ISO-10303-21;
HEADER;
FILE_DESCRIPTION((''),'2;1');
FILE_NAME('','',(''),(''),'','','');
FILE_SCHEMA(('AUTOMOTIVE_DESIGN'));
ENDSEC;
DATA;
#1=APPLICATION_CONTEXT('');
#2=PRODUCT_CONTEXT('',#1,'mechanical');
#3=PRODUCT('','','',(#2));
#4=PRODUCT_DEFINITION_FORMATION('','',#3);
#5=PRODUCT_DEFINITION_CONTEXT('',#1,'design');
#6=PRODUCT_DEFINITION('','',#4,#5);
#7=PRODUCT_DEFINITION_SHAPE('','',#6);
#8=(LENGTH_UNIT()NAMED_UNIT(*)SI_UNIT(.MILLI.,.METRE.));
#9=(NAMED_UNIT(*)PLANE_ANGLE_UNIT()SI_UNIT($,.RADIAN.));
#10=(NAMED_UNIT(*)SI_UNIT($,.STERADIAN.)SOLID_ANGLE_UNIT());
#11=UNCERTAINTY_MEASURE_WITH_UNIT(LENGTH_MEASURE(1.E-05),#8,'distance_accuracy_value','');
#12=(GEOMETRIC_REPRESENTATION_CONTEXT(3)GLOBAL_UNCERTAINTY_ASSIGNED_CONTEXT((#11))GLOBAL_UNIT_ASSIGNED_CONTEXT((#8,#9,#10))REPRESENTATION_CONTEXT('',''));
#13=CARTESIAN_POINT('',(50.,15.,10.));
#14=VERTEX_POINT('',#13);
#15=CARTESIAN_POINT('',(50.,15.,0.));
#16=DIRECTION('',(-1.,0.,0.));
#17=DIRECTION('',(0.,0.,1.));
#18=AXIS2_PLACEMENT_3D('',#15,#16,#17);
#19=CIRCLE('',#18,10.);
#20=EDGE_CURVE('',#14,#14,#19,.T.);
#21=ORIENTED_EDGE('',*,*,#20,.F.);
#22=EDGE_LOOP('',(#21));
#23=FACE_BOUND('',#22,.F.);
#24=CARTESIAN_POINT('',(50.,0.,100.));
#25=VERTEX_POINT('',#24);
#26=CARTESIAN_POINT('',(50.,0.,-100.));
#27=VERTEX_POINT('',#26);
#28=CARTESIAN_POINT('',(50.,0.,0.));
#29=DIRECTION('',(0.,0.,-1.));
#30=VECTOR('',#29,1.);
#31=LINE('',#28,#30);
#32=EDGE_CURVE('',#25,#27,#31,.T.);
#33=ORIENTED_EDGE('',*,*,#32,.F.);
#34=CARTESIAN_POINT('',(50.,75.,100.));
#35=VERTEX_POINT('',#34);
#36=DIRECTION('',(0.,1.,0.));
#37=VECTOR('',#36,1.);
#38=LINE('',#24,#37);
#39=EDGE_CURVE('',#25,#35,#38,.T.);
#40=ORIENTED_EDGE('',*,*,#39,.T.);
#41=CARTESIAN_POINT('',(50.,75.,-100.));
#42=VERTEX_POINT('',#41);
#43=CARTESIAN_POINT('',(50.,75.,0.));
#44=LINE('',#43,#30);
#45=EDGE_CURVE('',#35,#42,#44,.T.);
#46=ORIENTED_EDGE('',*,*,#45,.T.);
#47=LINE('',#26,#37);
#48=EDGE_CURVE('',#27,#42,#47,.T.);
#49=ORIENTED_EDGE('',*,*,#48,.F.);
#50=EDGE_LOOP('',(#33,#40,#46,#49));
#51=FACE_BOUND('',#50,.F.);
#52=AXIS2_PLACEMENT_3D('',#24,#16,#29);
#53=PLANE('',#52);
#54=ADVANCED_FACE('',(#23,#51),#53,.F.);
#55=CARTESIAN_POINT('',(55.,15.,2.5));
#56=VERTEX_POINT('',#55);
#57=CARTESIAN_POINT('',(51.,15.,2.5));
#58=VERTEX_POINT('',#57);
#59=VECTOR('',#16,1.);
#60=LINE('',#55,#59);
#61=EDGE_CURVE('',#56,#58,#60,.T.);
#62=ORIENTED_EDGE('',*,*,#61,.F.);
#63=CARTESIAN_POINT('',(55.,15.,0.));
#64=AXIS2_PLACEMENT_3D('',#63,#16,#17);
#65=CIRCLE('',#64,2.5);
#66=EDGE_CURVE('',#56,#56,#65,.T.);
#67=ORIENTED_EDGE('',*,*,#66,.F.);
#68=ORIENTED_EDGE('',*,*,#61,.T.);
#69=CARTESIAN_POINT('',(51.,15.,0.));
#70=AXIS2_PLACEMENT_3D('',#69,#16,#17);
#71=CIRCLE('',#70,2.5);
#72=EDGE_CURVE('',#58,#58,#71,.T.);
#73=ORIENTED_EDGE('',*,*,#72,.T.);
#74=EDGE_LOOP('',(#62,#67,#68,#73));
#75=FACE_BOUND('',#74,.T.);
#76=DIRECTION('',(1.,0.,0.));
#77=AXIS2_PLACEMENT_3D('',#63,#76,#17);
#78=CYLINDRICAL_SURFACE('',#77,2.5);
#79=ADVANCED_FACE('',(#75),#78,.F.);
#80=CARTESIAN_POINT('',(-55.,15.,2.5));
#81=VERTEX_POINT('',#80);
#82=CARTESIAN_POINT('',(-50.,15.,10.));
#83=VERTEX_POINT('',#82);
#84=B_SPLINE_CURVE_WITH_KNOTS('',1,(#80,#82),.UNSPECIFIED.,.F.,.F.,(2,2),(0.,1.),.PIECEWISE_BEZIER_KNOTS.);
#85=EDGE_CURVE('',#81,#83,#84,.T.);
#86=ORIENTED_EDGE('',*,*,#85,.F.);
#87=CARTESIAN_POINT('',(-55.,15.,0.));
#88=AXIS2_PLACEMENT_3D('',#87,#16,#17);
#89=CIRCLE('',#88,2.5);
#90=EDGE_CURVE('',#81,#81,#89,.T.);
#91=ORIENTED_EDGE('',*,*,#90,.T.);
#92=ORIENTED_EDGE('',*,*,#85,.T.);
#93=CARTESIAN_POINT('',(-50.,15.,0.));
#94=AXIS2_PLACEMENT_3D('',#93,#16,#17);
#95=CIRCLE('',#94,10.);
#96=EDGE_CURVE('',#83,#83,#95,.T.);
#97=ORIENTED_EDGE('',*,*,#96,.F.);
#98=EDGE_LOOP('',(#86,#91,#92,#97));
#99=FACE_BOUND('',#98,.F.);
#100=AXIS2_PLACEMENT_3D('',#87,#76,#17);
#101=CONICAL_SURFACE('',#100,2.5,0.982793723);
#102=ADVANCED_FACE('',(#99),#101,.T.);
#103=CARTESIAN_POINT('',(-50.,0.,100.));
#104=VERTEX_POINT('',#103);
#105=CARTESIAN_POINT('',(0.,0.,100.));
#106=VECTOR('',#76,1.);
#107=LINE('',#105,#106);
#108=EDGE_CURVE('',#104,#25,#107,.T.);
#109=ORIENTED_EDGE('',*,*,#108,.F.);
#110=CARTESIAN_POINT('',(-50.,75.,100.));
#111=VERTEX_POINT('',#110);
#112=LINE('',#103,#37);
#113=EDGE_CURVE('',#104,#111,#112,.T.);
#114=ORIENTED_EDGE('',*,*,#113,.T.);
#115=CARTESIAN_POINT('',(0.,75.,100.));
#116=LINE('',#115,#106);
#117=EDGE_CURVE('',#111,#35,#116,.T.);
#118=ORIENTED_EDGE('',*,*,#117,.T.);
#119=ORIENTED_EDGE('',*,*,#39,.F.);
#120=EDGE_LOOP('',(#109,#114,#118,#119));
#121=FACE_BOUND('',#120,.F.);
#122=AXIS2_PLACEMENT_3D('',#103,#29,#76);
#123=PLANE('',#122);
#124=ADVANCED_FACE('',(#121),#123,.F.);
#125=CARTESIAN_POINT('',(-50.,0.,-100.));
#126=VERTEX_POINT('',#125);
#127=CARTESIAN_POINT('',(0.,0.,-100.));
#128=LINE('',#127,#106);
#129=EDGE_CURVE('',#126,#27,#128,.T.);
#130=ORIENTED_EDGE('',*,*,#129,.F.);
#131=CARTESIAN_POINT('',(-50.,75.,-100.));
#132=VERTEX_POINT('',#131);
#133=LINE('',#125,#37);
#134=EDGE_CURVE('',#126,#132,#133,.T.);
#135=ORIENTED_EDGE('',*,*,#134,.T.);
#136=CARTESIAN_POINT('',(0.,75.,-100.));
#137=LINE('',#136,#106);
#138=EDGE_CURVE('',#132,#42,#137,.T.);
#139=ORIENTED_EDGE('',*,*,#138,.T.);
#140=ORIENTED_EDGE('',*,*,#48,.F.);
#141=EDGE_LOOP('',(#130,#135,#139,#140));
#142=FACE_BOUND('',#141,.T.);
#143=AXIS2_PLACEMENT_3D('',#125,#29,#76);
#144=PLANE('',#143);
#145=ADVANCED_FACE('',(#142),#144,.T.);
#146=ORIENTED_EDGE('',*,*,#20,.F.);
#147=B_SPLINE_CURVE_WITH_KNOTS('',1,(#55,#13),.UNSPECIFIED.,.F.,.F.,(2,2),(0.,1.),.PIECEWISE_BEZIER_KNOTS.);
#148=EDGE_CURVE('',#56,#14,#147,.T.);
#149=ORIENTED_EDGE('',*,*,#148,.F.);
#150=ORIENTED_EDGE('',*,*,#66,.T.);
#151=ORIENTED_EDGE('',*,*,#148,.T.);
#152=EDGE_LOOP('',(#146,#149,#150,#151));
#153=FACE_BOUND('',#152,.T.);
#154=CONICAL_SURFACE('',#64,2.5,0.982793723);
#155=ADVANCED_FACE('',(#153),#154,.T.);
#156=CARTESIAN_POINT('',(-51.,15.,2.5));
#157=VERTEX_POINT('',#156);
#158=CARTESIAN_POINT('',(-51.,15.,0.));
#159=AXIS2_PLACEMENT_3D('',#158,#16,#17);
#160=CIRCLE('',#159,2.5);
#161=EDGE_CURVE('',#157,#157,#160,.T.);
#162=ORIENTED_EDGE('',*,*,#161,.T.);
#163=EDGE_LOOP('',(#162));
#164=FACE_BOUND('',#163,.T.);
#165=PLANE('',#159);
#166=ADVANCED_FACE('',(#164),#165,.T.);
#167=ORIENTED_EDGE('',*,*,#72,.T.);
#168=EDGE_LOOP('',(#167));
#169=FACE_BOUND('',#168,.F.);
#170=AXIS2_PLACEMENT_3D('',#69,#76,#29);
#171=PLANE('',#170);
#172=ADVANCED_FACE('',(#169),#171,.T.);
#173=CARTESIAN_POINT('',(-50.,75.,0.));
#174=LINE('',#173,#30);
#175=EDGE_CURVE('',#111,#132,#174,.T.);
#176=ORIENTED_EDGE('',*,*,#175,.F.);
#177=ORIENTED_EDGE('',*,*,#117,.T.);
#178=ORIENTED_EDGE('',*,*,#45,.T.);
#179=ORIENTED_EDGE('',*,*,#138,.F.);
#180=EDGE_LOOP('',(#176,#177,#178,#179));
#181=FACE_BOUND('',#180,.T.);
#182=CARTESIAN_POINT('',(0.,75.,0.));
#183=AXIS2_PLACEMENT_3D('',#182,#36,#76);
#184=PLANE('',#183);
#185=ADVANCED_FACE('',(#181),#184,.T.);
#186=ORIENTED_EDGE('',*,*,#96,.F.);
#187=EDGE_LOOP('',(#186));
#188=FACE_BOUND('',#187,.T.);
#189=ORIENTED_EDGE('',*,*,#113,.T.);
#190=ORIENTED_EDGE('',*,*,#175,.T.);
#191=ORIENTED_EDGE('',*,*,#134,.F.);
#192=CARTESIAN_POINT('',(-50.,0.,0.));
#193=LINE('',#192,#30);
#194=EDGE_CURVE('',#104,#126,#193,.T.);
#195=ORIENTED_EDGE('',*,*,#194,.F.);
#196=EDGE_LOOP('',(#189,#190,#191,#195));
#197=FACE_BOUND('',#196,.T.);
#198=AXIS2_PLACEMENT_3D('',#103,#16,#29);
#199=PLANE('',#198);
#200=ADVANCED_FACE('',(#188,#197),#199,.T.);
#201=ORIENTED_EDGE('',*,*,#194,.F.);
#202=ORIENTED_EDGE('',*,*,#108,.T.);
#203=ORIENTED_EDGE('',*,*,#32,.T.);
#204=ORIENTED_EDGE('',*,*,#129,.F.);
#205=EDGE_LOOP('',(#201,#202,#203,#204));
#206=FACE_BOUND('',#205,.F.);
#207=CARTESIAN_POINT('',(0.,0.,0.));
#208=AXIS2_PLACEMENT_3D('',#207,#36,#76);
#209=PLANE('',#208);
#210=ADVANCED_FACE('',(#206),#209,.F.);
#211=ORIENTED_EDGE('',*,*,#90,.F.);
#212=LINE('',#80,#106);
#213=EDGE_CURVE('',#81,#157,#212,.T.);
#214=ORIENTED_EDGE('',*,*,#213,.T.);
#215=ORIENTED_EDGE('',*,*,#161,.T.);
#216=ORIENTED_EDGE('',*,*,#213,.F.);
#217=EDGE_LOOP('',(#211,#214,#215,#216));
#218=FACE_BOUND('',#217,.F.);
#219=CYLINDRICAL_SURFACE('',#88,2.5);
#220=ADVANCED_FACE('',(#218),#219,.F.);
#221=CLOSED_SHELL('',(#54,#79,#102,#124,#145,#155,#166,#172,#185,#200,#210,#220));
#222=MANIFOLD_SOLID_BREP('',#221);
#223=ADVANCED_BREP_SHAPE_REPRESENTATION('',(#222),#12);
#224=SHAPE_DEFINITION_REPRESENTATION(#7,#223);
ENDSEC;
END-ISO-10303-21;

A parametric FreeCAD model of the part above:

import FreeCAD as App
import Part
import Sketcher
from FreeCAD import Vector
Q = App.Units.Quantity


def add_polygon(sketch, points):
    """Adds a closed chain of lines whose ends are joined by coincident constraints."""
    first, n = sketch.GeometryCount, len(points)
    for a, b in zip(points, points[1:] + points[:1]):
        sketch.addGeometry(Part.LineSegment(App.Vector(*a, 0), App.Vector(*b, 0)), False)
    for i in range(n):
        sketch.addConstraint(Sketcher.Constraint("Coincident", first + i, 2, first + (i + 1) % n, 1))

doc = App.newDocument("Part")
params = doc.addObject("Spreadsheet::Sheet", "Params")
for row, (alias, value) in enumerate([
    ("sketch1_width", "100 mm"),
    ("sketch1_height", "200 mm"),
    ("pad1_length", "75 mm"),
    ("sketch2_diameter", "5 mm"),
    ("sketch3_diameter", "20 mm"),
    ("sketch4_diameter", "5 mm"),
    ("pocket1_length", "4 mm"),
], start=1):
    params.set(f"A{row}", alias)
    params.set(f"B{row}", "=" + value)
    params.setAlias(f"B{row}", alias)

body = doc.addObject("PartDesign::Body", "Body")

sketch1 = body.newObject("Sketcher::SketchObject", "Sketch")
sketch1.AttachmentSupport = (doc.getObject("XZ_Plane"), [""])
sketch1.MapMode = "FlatFace"
add_polygon(sketch1, [(-50, -100), (-50, 100), (50, 100), (50, -100)])
sketch1.addConstraint([
    Sketcher.Constraint("Vertical", 0),
    Sketcher.Constraint("Horizontal", 1),
    Sketcher.Constraint("Vertical", 2),
    Sketcher.Constraint("Horizontal", 3),
    Sketcher.Constraint("Symmetric", 0, 2, 2, 2, -1, 1),
    Sketcher.Constraint("DistanceX", 1, 1, 1, 2, Q("100 mm")),
    Sketcher.Constraint("DistanceY", 0, 1, 0, 2, Q("200 mm")),
])
sketch1.setExpression("Constraints[9]", "Params.sketch1_width")
sketch1.setExpression("Constraints[10]", "Params.sketch1_height")
pad1 = body.newObject("PartDesign::Pad", "Pad")
pad1.Profile = sketch1
pad1.setExpression("Length", "Params.pad1_length")
pad1.Reversed = True

sketch2 = body.newObject("Sketcher::SketchObject", "Sketch001")
sketch2.AttachmentSupport = (doc.getObject("YZ_Plane"), [""])
sketch2.MapMode = "FlatFace"
sketch2.AttachmentOffset = App.Placement(Vector(0, 0, -55), App.Rotation())
sketch2.addGeometry(Part.Circle(Vector(15, 0, 0), Vector(0, 0, 1), 2.5), False)
sketch2.addConstraint([
    Sketcher.Constraint("PointOnObject", 0, 3, -1),
    Sketcher.Constraint("Diameter", 0, Q("5 mm")),
    Sketcher.Constraint("DistanceX", -1, 1, 0, 3, Q("15 mm")),
])
sketch2.setExpression("Constraints[1]", "Params.sketch2_diameter")

sketch3 = body.newObject("Sketcher::SketchObject", "Sketch002")
sketch3.AttachmentSupport = (doc.getObject("YZ_Plane"), [""])
sketch3.MapMode = "FlatFace"
sketch3.AttachmentOffset = App.Placement(Vector(0, 0, -50), App.Rotation())
sketch3.addGeometry(Part.Circle(Vector(15, 0, 0), Vector(0, 0, 1), 10), False)
sketch3.addConstraint([
    Sketcher.Constraint("PointOnObject", 0, 3, -1),
    Sketcher.Constraint("Diameter", 0, Q("20 mm")),
    Sketcher.Constraint("DistanceX", -1, 1, 0, 3, Q("15 mm")),
])
sketch3.setExpression("Constraints[1]", "Params.sketch3_diameter")

additiveloft = body.newObject("PartDesign::AdditiveLoft", "AdditiveLoft")
additiveloft.Profile = sketch2
additiveloft.Sections = [sketch3]

sketch4 = body.newObject("Sketcher::SketchObject", "Sketch003")
sketch4.AttachmentSupport = (doc.getObject("YZ_Plane"), [""])
sketch4.MapMode = "FlatFace"
sketch4.AttachmentOffset = App.Placement(Vector(0, 0, -55), App.Rotation())
sketch4.addGeometry(Part.Circle(Vector(15, 0, 0), Vector(0, 0, 1), 2.5), False)
sketch4.addConstraint([
    Sketcher.Constraint("PointOnObject", 0, 3, -1),
    Sketcher.Constraint("Diameter", 0, Q("5 mm")),
    Sketcher.Constraint("DistanceX", -1, 1, 0, 3, Q("15 mm")),
])
sketch4.setExpression("Constraints[1]", "Params.sketch4_diameter")
pocket1 = body.newObject("PartDesign::Pocket", "Pocket")
pocket1.Profile = sketch4
pocket1.setExpression("Length", "Params.pocket1_length")
pocket1.Reversed = True
doc.recompute()

mirrored = body.newObject("PartDesign::Mirrored", "Mirrored")
mirrored.Originals = [additiveloft, pocket1]
mirrored.MirrorPlane = (doc.getObject("YZ_Plane"), [""])
body.Tip = mirrored

doc.recompute()
